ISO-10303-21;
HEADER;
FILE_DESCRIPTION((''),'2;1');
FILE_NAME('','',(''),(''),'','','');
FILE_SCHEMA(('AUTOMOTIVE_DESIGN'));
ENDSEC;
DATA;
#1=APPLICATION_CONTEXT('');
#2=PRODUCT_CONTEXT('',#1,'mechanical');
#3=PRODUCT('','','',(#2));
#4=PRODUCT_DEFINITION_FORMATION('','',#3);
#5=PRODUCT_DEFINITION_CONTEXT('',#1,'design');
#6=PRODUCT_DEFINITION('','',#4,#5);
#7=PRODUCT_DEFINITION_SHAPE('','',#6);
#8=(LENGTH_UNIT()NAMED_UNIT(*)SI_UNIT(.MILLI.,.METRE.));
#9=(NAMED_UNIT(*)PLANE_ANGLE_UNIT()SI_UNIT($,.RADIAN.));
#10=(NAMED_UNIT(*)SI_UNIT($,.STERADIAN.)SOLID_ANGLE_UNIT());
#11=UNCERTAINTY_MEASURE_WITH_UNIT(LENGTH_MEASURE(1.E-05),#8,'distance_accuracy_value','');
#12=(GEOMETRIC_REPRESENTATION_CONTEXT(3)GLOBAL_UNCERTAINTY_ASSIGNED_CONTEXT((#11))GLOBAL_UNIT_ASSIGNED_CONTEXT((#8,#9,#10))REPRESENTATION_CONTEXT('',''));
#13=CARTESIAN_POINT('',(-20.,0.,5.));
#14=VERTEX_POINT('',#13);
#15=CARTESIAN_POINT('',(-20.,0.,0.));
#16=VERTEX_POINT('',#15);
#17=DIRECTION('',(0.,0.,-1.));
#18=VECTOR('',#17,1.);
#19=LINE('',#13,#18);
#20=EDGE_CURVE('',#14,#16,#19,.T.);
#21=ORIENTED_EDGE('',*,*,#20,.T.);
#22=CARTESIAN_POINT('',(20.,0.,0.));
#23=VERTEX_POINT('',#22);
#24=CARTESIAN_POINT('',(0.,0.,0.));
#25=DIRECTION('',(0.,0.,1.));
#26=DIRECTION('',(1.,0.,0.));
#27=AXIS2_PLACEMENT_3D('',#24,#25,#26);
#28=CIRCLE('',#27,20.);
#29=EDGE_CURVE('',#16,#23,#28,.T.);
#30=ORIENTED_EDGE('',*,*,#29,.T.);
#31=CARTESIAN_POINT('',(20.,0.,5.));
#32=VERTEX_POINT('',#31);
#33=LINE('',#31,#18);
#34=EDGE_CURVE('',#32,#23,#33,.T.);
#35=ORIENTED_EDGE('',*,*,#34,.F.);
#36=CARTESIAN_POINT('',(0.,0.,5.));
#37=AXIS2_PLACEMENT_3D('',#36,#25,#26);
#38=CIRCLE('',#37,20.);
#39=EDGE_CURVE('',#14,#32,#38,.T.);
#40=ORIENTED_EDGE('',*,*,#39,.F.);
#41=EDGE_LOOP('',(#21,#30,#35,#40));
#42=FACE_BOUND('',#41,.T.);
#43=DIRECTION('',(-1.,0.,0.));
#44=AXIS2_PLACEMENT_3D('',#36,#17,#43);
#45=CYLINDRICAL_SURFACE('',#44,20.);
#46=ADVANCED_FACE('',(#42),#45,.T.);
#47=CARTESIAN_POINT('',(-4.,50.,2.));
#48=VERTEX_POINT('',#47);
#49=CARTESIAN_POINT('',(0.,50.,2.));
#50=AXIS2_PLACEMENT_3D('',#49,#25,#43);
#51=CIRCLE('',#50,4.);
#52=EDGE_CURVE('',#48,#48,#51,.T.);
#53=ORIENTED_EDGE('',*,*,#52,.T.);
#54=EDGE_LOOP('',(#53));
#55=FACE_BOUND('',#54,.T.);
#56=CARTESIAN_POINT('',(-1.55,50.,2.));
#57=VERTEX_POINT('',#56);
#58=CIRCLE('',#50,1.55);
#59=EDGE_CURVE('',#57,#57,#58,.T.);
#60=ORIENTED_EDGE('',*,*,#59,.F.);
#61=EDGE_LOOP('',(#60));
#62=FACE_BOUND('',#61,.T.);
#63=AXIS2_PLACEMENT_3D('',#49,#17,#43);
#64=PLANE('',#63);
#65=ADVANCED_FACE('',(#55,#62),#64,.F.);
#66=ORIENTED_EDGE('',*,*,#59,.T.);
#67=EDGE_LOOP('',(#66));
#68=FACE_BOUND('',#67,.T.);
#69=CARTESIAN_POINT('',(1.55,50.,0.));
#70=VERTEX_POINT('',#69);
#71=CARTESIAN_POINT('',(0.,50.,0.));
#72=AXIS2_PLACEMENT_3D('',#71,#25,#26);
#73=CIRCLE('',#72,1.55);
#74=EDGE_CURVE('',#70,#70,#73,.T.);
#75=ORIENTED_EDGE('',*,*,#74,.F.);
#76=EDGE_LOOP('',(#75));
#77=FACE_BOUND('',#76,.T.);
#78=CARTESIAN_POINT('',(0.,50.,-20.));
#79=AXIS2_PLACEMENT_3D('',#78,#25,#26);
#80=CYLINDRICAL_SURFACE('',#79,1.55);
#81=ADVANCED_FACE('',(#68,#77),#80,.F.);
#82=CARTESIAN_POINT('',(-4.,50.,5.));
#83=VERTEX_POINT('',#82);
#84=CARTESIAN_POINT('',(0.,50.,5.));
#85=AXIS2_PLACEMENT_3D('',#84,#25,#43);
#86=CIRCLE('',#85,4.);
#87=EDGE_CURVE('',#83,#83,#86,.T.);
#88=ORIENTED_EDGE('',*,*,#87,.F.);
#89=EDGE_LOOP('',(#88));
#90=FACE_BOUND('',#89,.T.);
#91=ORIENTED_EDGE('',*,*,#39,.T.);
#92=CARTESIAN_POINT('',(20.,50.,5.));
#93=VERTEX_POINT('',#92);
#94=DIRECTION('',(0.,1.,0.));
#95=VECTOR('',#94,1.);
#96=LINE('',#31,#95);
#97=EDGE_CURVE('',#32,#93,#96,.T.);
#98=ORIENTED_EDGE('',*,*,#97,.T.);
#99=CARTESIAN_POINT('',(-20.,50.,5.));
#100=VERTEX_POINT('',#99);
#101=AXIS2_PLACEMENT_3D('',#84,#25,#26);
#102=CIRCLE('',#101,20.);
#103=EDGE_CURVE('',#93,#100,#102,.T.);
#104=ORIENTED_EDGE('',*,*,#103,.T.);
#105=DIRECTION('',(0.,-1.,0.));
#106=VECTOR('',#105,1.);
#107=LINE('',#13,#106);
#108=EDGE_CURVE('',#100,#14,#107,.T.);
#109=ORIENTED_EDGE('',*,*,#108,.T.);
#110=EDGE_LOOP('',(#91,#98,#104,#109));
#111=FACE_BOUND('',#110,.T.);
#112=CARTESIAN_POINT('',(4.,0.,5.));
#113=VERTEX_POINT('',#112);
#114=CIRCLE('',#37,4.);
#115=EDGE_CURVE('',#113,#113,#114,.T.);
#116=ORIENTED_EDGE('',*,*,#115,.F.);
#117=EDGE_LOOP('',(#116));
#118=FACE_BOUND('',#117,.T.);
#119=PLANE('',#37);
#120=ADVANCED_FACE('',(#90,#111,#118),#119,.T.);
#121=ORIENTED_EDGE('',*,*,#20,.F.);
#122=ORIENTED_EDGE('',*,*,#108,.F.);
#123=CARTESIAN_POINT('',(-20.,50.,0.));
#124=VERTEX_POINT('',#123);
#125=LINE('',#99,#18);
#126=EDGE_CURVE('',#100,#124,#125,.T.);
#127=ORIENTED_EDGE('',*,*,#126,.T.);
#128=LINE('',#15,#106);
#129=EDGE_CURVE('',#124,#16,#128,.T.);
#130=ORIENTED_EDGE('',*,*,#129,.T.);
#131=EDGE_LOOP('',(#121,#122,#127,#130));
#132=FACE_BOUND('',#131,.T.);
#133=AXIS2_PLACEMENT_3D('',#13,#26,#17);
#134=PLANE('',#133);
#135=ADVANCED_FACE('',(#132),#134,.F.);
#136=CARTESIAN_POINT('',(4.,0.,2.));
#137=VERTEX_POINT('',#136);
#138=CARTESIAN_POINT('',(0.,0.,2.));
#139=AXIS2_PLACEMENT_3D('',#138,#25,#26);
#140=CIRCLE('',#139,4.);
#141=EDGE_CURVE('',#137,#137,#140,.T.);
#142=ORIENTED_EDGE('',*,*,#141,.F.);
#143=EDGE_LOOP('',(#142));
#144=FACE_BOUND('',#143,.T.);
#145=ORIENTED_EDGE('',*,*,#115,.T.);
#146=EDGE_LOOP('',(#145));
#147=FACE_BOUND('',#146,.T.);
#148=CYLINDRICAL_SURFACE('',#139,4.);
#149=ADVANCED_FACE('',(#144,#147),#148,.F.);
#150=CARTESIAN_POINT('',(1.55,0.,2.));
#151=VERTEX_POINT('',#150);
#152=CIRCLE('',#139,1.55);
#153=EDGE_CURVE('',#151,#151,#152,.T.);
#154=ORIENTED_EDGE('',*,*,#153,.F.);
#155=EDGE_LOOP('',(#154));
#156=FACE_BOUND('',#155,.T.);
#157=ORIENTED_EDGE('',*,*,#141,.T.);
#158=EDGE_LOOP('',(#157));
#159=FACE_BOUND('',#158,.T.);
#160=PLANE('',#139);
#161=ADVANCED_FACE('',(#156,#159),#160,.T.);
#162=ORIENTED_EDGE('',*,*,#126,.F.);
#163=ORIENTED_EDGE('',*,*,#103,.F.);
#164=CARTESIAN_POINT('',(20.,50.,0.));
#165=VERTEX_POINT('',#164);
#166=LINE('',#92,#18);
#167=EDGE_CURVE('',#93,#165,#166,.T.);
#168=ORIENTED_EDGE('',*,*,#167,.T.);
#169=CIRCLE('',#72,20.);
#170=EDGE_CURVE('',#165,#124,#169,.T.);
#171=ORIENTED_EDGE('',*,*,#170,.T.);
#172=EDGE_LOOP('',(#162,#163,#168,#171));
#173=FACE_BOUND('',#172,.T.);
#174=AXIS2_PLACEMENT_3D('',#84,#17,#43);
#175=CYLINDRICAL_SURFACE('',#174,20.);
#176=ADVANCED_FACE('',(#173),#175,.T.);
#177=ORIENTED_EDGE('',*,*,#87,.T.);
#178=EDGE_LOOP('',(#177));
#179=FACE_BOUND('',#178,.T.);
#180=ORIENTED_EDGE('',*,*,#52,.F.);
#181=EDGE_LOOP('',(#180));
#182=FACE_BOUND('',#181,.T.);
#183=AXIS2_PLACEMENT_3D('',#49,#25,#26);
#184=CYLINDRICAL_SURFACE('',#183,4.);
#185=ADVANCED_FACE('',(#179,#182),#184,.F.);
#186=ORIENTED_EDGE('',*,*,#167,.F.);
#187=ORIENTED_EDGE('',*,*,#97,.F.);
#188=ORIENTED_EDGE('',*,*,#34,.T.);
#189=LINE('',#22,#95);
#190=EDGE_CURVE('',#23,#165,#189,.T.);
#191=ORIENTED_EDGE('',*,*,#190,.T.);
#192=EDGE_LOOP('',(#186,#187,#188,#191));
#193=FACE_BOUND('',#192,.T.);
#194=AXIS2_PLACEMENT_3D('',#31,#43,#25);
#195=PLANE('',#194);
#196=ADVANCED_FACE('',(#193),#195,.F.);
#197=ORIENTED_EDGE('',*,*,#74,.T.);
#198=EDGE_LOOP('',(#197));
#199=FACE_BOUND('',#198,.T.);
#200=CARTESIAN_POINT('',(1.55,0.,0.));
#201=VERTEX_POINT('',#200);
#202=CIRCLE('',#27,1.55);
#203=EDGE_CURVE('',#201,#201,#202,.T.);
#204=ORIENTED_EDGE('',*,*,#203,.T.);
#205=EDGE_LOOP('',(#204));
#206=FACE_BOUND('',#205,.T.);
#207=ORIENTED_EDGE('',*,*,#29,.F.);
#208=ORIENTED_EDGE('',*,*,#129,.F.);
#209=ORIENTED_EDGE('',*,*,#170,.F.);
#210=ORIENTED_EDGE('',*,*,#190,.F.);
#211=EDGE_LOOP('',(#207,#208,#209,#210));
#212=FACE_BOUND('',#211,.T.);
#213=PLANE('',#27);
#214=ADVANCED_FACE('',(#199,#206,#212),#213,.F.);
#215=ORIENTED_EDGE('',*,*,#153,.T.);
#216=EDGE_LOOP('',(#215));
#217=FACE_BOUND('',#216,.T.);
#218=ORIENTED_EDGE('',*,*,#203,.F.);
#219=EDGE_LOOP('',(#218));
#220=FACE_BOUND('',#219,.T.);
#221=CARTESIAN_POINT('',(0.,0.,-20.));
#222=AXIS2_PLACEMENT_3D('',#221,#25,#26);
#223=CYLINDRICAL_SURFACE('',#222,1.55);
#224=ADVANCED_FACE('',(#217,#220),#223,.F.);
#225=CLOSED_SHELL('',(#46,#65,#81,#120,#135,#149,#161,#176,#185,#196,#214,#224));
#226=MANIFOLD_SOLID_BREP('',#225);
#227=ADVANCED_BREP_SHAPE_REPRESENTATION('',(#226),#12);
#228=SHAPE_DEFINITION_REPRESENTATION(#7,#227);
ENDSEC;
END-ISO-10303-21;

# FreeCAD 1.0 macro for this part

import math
import FreeCAD as App
import Part
import Sketcher
from FreeCAD import Vector
Q = App.Units.Quantity

doc = App.newDocument("Part")
params = doc.addObject("Spreadsheet::Sheet", "Params")
for row, (alias, value) in enumerate([
    ("sketch1_radius", "20 mm"),
    ("sketch1_height", "50 mm"),
    ("pad1_length", "5 mm"),
    ("sketch2_diameter", "8 mm"),
    ("pocket1_length", "3 mm"),
    ("sketch3_diameter", "3.1 mm"),
    ("pocket2_length", "22 mm"),
], start=1):
    params.set(f"A{row}", alias)
    params.set(f"B{row}", "=" + value)
    params.setAlias(f"B{row}", alias)

body = doc.addObject("PartDesign::Body", "Body")

# Sketch on XY plane
sketch1 = doc.addObject("Sketcher::SketchObject", "Sketch")
body.addObject(sketch1)
sketch1.AttachmentSupport = (doc.XY_Plane, [""])
sketch1.MapMode = "FlatFace"
sketch1.addGeometry([
    Part.LineSegment(Vector(-20, 50, 0), Vector(-20, 0, 0)),
    Part.ArcOfCircle(Part.Circle(Vector(0, 0, 0), Vector(0, 0, 1), 20), math.radians(180), math.radians(360)),
    Part.LineSegment(Vector(20, 0, 0), Vector(20, 50, 0)),
    Part.ArcOfCircle(Part.Circle(Vector(0, 50, 0), Vector(0, 0, 1), 20), math.radians(0), math.radians(180)),
], False)
sketch1.addConstraint([
    Sketcher.Constraint("Tangent", 0, 2, 1, 1),
    Sketcher.Constraint("Tangent", 1, 2, 2, 1),
    Sketcher.Constraint("Tangent", 2, 2, 3, 1),
    Sketcher.Constraint("Tangent", 3, 2, 0, 1),
    Sketcher.Constraint("Vertical", 0),
    Sketcher.Constraint("Vertical", 2),
    Sketcher.Constraint("Coincident", 1, 3, -1, 1),
    Sketcher.Constraint("Radius", 1, Q("20 mm")),
    Sketcher.Constraint("DistanceY", 0, 2, 0, 1, Q("50 mm")),
])
sketch1.setExpression("Constraints[7]", "Params.sketch1_radius")
sketch1.setExpression("Constraints[8]", "Params.sketch1_height")
pad1 = doc.addObject("PartDesign::Pad", "Pad")
body.addObject(pad1)
pad1.Profile = sketch1
pad1.setExpression("Length", "Params.pad1_length")

# Sketch on XY plane
sketch2 = doc.addObject("Sketcher::SketchObject", "Sketch001")
body.addObject(sketch2)
sketch2.AttachmentSupport = (doc.XY_Plane, [""])
sketch2.MapMode = "FlatFace"
sketch2.AttachmentOffset = App.Placement(Vector(0, 0, 5), App.Rotation())
sketch2.addGeometry([
    Part.Circle(Vector(0, 0, 0), Vector(0, 0, 1), 4),
    Part.Circle(Vector(0, 50, 0), Vector(0, 0, 1), 4),
], False)
sketch2.addConstraint([
    Sketcher.Constraint("Coincident", 0, 3, -1, 1),
    Sketcher.Constraint("Equal", 0, 1),
    Sketcher.Constraint("PointOnObject", 1, 3, -2),
    Sketcher.Constraint("Diameter", 0, Q("8 mm")),
    Sketcher.Constraint("DistanceY", -1, 1, 1, 3, Q("50 mm")),
])
sketch2.setExpression("Constraints[3]", "Params.sketch2_diameter")
pocket1 = doc.addObject("PartDesign::Pocket", "Pocket")
body.addObject(pocket1)
pocket1.Profile = sketch2
pocket1.setExpression("Length", "Params.pocket1_length")

# Sketch on XY plane
sketch3 = doc.addObject("Sketcher::SketchObject", "Sketch002")
body.addObject(sketch3)
sketch3.AttachmentSupport = (doc.XY_Plane, [""])
sketch3.MapMode = "FlatFace"
sketch3.AttachmentOffset = App.Placement(Vector(0, 0, 2), App.Rotation())
sketch3.addGeometry([
    Part.Circle(Vector(0, 0, 0), Vector(0, 0, 1), 1.6),
    Part.Circle(Vector(0, 50, 0), Vector(0, 0, 1), 1.6),
], False)
sketch3.addConstraint([
    Sketcher.Constraint("Coincident", 0, 3, -1, 1),
    Sketcher.Constraint("Equal", 0, 1),
    Sketcher.Constraint("PointOnObject", 1, 3, -2),
    Sketcher.Constraint("Diameter", 0, Q("3.1 mm")),
    Sketcher.Constraint("DistanceY", -1, 1, 1, 3, Q("50 mm")),
])
sketch3.setExpression("Constraints[3]", "Params.sketch3_diameter")
pocket2 = doc.addObject("PartDesign::Pocket", "Pocket001")
body.addObject(pocket2)
pocket2.Profile = sketch3
pocket2.setExpression("Length", "Params.pocket2_length")

doc.recompute()
